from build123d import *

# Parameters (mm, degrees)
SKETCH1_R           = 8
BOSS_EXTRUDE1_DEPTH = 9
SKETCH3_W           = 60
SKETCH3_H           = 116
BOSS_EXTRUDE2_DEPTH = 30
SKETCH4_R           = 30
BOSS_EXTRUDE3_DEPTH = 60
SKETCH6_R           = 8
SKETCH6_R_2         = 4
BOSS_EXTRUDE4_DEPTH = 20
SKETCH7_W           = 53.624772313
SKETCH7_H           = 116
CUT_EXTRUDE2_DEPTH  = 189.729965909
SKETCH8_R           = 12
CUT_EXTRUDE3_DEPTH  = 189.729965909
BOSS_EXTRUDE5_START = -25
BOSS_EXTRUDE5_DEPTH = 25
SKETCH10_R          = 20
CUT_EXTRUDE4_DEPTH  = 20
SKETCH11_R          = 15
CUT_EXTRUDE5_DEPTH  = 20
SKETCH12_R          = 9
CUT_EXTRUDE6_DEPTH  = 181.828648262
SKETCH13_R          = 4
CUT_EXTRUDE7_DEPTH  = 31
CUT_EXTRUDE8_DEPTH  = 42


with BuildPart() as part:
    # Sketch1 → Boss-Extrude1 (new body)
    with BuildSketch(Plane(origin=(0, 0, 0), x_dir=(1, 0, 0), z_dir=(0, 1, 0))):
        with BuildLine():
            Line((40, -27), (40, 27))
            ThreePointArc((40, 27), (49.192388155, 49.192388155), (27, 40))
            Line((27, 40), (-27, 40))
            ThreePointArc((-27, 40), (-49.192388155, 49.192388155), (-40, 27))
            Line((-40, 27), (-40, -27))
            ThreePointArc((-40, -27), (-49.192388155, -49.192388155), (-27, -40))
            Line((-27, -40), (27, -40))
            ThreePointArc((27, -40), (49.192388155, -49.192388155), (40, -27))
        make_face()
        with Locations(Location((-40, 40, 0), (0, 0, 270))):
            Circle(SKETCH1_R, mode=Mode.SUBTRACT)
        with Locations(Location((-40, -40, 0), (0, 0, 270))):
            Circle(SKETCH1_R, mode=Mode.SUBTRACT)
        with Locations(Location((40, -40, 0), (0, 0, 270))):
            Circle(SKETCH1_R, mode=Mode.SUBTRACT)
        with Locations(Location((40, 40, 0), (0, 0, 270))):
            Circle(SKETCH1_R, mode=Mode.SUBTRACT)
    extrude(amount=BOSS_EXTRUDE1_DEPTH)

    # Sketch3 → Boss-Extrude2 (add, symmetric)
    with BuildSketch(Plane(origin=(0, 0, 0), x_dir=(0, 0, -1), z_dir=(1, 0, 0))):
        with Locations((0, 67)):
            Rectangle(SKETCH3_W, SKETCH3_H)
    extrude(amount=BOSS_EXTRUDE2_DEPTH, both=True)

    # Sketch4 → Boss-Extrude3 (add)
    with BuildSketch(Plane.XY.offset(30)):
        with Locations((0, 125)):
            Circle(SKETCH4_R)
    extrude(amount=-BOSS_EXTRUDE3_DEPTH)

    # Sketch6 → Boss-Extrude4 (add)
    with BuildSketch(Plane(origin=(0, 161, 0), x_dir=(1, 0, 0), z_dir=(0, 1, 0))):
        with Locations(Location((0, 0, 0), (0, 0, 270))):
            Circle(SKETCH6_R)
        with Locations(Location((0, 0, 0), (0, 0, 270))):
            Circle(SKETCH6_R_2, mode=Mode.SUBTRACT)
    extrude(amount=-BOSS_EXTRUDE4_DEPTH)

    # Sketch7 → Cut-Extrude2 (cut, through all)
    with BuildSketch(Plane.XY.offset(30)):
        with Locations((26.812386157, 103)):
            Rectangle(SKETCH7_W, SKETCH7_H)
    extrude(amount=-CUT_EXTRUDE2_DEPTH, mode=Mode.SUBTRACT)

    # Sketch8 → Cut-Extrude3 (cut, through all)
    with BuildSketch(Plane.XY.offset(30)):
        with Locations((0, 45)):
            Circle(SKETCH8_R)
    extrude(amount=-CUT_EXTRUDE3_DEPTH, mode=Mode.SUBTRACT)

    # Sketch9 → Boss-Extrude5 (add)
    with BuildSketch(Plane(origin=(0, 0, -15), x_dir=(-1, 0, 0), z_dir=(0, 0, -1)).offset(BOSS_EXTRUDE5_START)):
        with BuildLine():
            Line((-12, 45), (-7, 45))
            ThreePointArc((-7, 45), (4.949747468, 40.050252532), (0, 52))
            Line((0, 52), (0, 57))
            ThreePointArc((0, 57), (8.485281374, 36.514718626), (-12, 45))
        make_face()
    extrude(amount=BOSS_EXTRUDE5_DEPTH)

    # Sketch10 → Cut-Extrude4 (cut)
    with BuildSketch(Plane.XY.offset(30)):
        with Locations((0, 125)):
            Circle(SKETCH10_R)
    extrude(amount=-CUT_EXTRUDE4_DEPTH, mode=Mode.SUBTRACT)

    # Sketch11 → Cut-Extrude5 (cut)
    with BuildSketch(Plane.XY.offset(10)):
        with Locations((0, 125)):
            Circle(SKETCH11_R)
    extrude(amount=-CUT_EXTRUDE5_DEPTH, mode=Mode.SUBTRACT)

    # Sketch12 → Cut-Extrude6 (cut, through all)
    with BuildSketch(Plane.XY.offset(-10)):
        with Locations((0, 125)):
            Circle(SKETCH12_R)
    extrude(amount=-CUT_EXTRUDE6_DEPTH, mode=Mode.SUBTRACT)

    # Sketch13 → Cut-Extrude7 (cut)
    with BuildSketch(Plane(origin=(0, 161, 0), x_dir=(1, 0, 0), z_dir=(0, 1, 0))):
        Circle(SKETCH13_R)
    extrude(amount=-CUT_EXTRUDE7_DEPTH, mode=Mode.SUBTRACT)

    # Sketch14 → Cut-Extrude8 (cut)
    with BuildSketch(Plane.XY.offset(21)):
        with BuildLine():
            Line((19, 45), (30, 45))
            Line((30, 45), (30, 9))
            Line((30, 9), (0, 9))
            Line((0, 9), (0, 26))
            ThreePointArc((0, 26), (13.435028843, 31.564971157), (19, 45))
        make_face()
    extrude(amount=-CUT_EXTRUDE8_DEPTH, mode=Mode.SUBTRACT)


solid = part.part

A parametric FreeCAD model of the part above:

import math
import FreeCAD as App
import Part
import Sketcher


def add_polygon(sketch, points):
    """Adds a closed chain of lines whose ends are joined by coincident constraints."""
    first, n = sketch.GeometryCount, len(points)
    for a, b in zip(points, points[1:] + points[:1]):
        sketch.addGeometry(Part.LineSegment(App.Vector(*a, 0), App.Vector(*b, 0)), False)
    for i in range(n):
        sketch.addConstraint(Sketcher.Constraint("Coincident", first + i, 2, first + (i + 1) % n, 1))

doc = App.newDocument("Part")
body = doc.addObject("PartDesign::Body", "Body")

sketch1 = doc.addObject("Sketcher::SketchObject", "Sketch")
body.addObject(sketch1)
sketch1.AttachmentSupport = (doc.XZ_Plane, [""])
sketch1.MapMode = "FlatFace"
sketch1.addGeometry([
    Part.LineSegment(App.Vector(40, 27, 0), App.Vector(40, -27, 0)),
    Part.ArcOfCircle(Part.Circle(App.Vector(40, -40, 0), App.Vector(0, 0, 1), 13), math.radians(180), math.radians(450)),
    Part.LineSegment(App.Vector(27, -40, 0), App.Vector(-27, -40, 0)),
    Part.ArcOfCircle(Part.Circle(App.Vector(-40, -40, 0), App.Vector(0, 0, 1), 13), math.radians(90), math.radians(360)),
    Part.LineSegment(App.Vector(-40, -27, 0), App.Vector(-40, 27, 0)),
    Part.ArcOfCircle(Part.Circle(App.Vector(-40, 40, 0), App.Vector(0, 0, 1), 13), math.radians(0), math.radians(270)),
    Part.LineSegment(App.Vector(-27, 40, 0), App.Vector(27, 40, 0)),
    Part.ArcOfCircle(Part.Circle(App.Vector(40, 40, 0), App.Vector(0, 0, 1), 13), math.radians(-90), math.radians(180)),
    Part.Circle(App.Vector(-40, 40, 0), App.Vector(0, 0, 1), 8),
    Part.Circle(App.Vector(40, 40, 0), App.Vector(0, 0, 1), 8),
    Part.Circle(App.Vector(-40, -40, 0), App.Vector(0, 0, 1), 8),
    Part.Circle(App.Vector(40, -40, 0), App.Vector(0, 0, 1), 8),
], False)
sketch1.addConstraint([
    Sketcher.Constraint("Coincident", 0, 2, 1, 2),
    Sketcher.Constraint("Coincident", 1, 1, 2, 1),
    Sketcher.Constraint("Coincident", 2, 2, 3, 2),
    Sketcher.Constraint("Coincident", 3, 1, 4, 1),
    Sketcher.Constraint("Coincident", 4, 2, 5, 2),
    Sketcher.Constraint("Coincident", 5, 1, 6, 1),
    Sketcher.Constraint("Coincident", 6, 2, 7, 2),
    Sketcher.Constraint("Coincident", 7, 1, 0, 1),
    Sketcher.Constraint("Vertical", 0),
    Sketcher.Constraint("Horizontal", 2),
    Sketcher.Constraint("Vertical", 4),
    Sketcher.Constraint("Horizontal", 6),
    Sketcher.Constraint("Coincident", 8, 3, 5, 3),
    Sketcher.Constraint("Coincident", 9, 3, 7, 3),
    Sketcher.Constraint("Coincident", 10, 3, 3, 3),
    Sketcher.Constraint("Coincident", 11, 3, 1, 3),
    Sketcher.Constraint("Equal", 1, 3),
    Sketcher.Constraint("Equal", 3, 5),
    Sketcher.Constraint("Equal", 5, 7),
    Sketcher.Constraint("Equal", 8, 9),
    Sketcher.Constraint("Equal", 9, 10),
    Sketcher.Constraint("Equal", 10, 11),
    Sketcher.Constraint("Symmetric", 1, 3, 5, 3, -1, 1),
    Sketcher.Constraint("Symmetric", 3, 3, 7, 3, -1, 1),
    Sketcher.Constraint("Symmetric", 1, 3, 3, 3, -2),
    Sketcher.Constraint("Horizontal", 11, 3, 1, 1),
    Sketcher.Constraint("Horizontal", 9, 3, 5, 1),
    Sketcher.Constraint("Vertical", 11, 3, 0, 2),
    Sketcher.Constraint("Vertical", 10, 3, 3, 1),
    Sketcher.Constraint("Equal", 6, 0),
    Sketcher.Constraint("Diameter", 8, 16.0),
    Sketcher.Constraint("Radius", 1, 13.0),
    Sketcher.Constraint("DistanceX", 2, 2, 2, 1, 54.0),
])
pad1 = doc.addObject("PartDesign::Pad", "Pad")
body.addObject(pad1)
pad1.Profile = sketch1
pad1.Length = 9
pad1.Reversed = True

sketch2 = doc.addObject("Sketcher::SketchObject", "Sketch001")
body.addObject(sketch2)
sketch2.AttachmentSupport = (doc.YZ_Plane, [""])
sketch2.MapMode = "FlatFace"
add_polygon(sketch2, [(125, 30), (9, 30), (9, -30), (125, -30)])
sketch2.addConstraint([
    Sketcher.Constraint("Horizontal", 0),
    Sketcher.Constraint("Vertical", 1),
    Sketcher.Constraint("Horizontal", 2),
    Sketcher.Constraint("Vertical", 3),
    Sketcher.Constraint("DistanceX", 0, 2, 0, 1, 116.0),
    Sketcher.Constraint("DistanceY", 1, 2, 1, 1, 60.0),
    Sketcher.Constraint("DistanceX", -1, 1, 0, 2, 9.0),
    Sketcher.Constraint("DistanceY", -1, 1, 0, 2, 30.0),
])
pad2 = doc.addObject("PartDesign::Pad", "Pad001")
body.addObject(pad2)
pad2.Profile = sketch2
pad2.Length = 60
pad2.Midplane = True

sketch3 = doc.addObject("Sketcher::SketchObject", "Sketch002")
body.addObject(sketch3)
sketch3.AttachmentSupport = (doc.XY_Plane, [""])
sketch3.MapMode = "FlatFace"
sketch3.AttachmentOffset = App.Placement(App.Vector(0, 0, 30), App.Rotation())
sketch3.addGeometry(Part.Circle(App.Vector(0, 125, 0), App.Vector(0, 0, 1), 30), False)
sketch3.addConstraint([
    Sketcher.Constraint("PointOnObject", 0, 3, -2),
    Sketcher.Constraint("Diameter", 0, 60.0),
    Sketcher.Constraint("DistanceY", -1, 1, 0, 3, 125.0),
])
pad3 = doc.addObject("PartDesign::Pad", "Pad002")
body.addObject(pad3)
pad3.Profile = sketch3
pad3.Length = 60
pad3.Reversed = True

sketch4 = doc.addObject("Sketcher::SketchObject", "Sketch003")
body.addObject(sketch4)
sketch4.AttachmentSupport = (doc.XZ_Plane, [""])
sketch4.MapMode = "FlatFace"
sketch4.AttachmentOffset = App.Placement(App.Vector(0, 0, -161), App.Rotation())
sketch4.addGeometry([
    Part.Circle(App.Vector(0, 0, 0), App.Vector(0, 0, 1), 8),
    Part.Circle(App.Vector(0, 0, 0), App.Vector(0, 0, 1), 4),
], False)
sketch4.addConstraint([
    Sketcher.Constraint("Coincident", 0, 3, -1, 1),
    Sketcher.Constraint("Coincident", 1, 3, -1, 1),
    Sketcher.Constraint("Diameter", 0, 16.0),
    Sketcher.Constraint("Diameter", 1, 8.0),
])
pad4 = doc.addObject("PartDesign::Pad", "Pad003")
body.addObject(pad4)
pad4.Profile = sketch4
pad4.Length = 20

sketch5 = doc.addObject("Sketcher::SketchObject", "Sketch004")
body.addObject(sketch5)
sketch5.AttachmentSupport = (doc.XY_Plane, [""])
sketch5.MapMode = "FlatFace"
sketch5.AttachmentOffset = App.Placement(App.Vector(0, 0, 30), App.Rotation())
add_polygon(sketch5, [(0, 161), (0, 45), (53.624772, 45), (53.624772, 161)])
sketch5.addConstraint([
    Sketcher.Constraint("Vertical", 0),
    Sketcher.Constraint("Horizontal", 1),
    Sketcher.Constraint("Vertical", 2),
    Sketcher.Constraint("Horizontal", 3),
    Sketcher.Constraint("PointOnObject", 0, 2, -2),
    Sketcher.Constraint("DistanceY", 0, 2, 0, 1, 116.0),
    Sketcher.Constraint("DistanceY", -1, 1, 0, 2, 45.0),
    Sketcher.Constraint("DistanceX", 1, 1, 1, 2, 53.624772),
])
pocket1 = doc.addObject("PartDesign::Pocket", "Pocket")
body.addObject(pocket1)
pocket1.Profile = sketch5
pocket1.Type = "ThroughAll"

sketch6 = doc.addObject("Sketcher::SketchObject", "Sketch005")
body.addObject(sketch6)
sketch6.AttachmentSupport = (doc.XY_Plane, [""])
sketch6.MapMode = "FlatFace"
sketch6.AttachmentOffset = App.Placement(App.Vector(0, 0, 30), App.Rotation())
sketch6.addGeometry(Part.Circle(App.Vector(0, 45, 0), App.Vector(0, 0, 1), 12), False)
sketch6.addConstraint([
    Sketcher.Constraint("PointOnObject", 0, 3, -2),
    Sketcher.Constraint("Diameter", 0, 24.0),
    Sketcher.Constraint("DistanceY", -1, 1, 0, 3, 45.0),
])
pocket2 = doc.addObject("PartDesign::Pocket", "Pocket001")
body.addObject(pocket2)
pocket2.Profile = sketch6
pocket2.Type = "ThroughAll"

sketch7 = doc.addObject("Sketcher::SketchObject", "Sketch006")
body.addObject(sketch7)
sketch7.AttachmentSupport = (doc.XY_Plane, [""])
sketch7.MapMode = "FlatFace"
sketch7.AttachmentOffset = App.Placement(App.Vector(0, 0, 10), App.Rotation())
sketch7.addGeometry([
    Part.LineSegment(App.Vector(7, 45, 0), App.Vector(12, 45, 0)),
    Part.ArcOfCircle(Part.Circle(App.Vector(0, 45, 0), App.Vector(0, 0, 1), 12), math.radians(90), math.radians(360)),
    Part.LineSegment(App.Vector(0, 57, 0), App.Vector(0, 52, 0)),
    Part.ArcOfCircle(Part.Circle(App.Vector(0, 45, 0), App.Vector(0, 0, 1), 7), math.radians(90), math.radians(360)),
], False)
sketch7.addConstraint([
    Sketcher.Constraint("Coincident", 0, 2, 1, 2),
    Sketcher.Constraint("Coincident", 1, 1, 2, 1),
    Sketcher.Constraint("Coincident", 2, 2, 3, 1),
    Sketcher.Constraint("Coincident", 3, 2, 0, 1),
    Sketcher.Constraint("Horizontal", 0),
    Sketcher.Constraint("Vertical", 2),
    Sketcher.Constraint("Coincident", 3, 3, 1, 3),
    Sketcher.Constraint("PointOnObject", 1, 3, -2),
    Sketcher.Constraint("PointOnObject", 1, 1, -2),
    Sketcher.Constraint("Horizontal", 3, 3, 0, 2),
    Sketcher.Constraint("Radius", 1, 12.0),
    Sketcher.Constraint("Radius", 3, 7.0),
    Sketcher.Constraint("DistanceY", -1, 1, 1, 3, 45.0),
])
pad5 = doc.addObject("PartDesign::Pad", "Pad004")
body.addObject(pad5)
pad5.Profile = sketch7
pad5.Length = 25
pad5.Reversed = True

sketch8 = doc.addObject("Sketcher::SketchObject", "Sketch007")
body.addObject(sketch8)
sketch8.AttachmentSupport = (doc.XY_Plane, [""])
sketch8.MapMode = "FlatFace"
sketch8.AttachmentOffset = App.Placement(App.Vector(0, 0, 30), App.Rotation())
sketch8.addGeometry(Part.Circle(App.Vector(0, 125, 0), App.Vector(0, 0, 1), 20), False)
sketch8.addConstraint([
    Sketcher.Constraint("PointOnObject", 0, 3, -2),
    Sketcher.Constraint("Diameter", 0, 40.0),
    Sketcher.Constraint("DistanceY", -1, 1, 0, 3, 125.0),
])
pocket3 = doc.addObject("PartDesign::Pocket", "Pocket002")
body.addObject(pocket3)
pocket3.Profile = sketch8
pocket3.Length = 20

sketch9 = doc.addObject("Sketcher::SketchObject", "Sketch008")
body.addObject(sketch9)
sketch9.AttachmentSupport = (doc.XY_Plane, [""])
sketch9.MapMode = "FlatFace"
sketch9.AttachmentOffset = App.Placement(App.Vector(0, 0, 10), App.Rotation())
sketch9.addGeometry(Part.Circle(App.Vector(0, 125, 0), App.Vector(0, 0, 1), 15), False)
sketch9.addConstraint([
    Sketcher.Constraint("PointOnObject", 0, 3, -2),
    Sketcher.Constraint("Diameter", 0, 30.0),
    Sketcher.Constraint("DistanceY", -1, 1, 0, 3, 125.0),
])
pocket4 = doc.addObject("PartDesign::Pocket", "Pocket003")
body.addObject(pocket4)
pocket4.Profile = sketch9
pocket4.Length = 20

sketch10 = doc.addObject("Sketcher::SketchObject", "Sketch009")
body.addObject(sketch10)
sketch10.AttachmentSupport = (doc.XY_Plane, [""])
sketch10.MapMode = "FlatFace"
sketch10.AttachmentOffset = App.Placement(App.Vector(0, 0, -10), App.Rotation())
sketch10.addGeometry(Part.Circle(App.Vector(0, 125, 0), App.Vector(0, 0, 1), 9), False)
sketch10.addConstraint([
    Sketcher.Constraint("PointOnObject", 0, 3, -2),
    Sketcher.Constraint("Diameter", 0, 18.0),
    Sketcher.Constraint("DistanceY", -1, 1, 0, 3, 125.0),
])
pocket5 = doc.addObject("PartDesign::Pocket", "Pocket004")
body.addObject(pocket5)
pocket5.Profile = sketch10
pocket5.Type = "ThroughAll"

sketch11 = doc.addObject("Sketcher::SketchObject", "Sketch010")
body.addObject(sketch11)
sketch11.AttachmentSupport = (doc.XZ_Plane, [""])
sketch11.MapMode = "FlatFace"
sketch11.AttachmentOffset = App.Placement(App.Vector(0, 0, -161), App.Rotation())
sketch11.addGeometry(Part.Circle(App.Vector(0, 0, 0), App.Vector(0, 0, 1), 4), False)
sketch11.addConstraint([
    Sketcher.Constraint("Coincident", 0, 3, -1, 1),
    Sketcher.Constraint("Diameter", 0, 8.0),
])
pocket6 = doc.addObject("PartDesign::Pocket", "Pocket005")
body.addObject(pocket6)
pocket6.Profile = sketch11
pocket6.Length = 31
pocket6.Reversed = True

sketch12 = doc.addObject("Sketcher::SketchObject", "Sketch011")
body.addObject(sketch12)
sketch12.AttachmentSupport = (doc.XY_Plane, [""])
sketch12.MapMode = "FlatFace"
sketch12.AttachmentOffset = App.Placement(App.Vector(0, 0, 21), App.Rotation())
sketch12.addGeometry([
    Part.LineSegment(App.Vector(30, 45, 0), App.Vector(19, 45, 0)),
    Part.ArcOfCircle(Part.Circle(App.Vector(0, 45, 0), App.Vector(0, 0, 1), 19), math.radians(-90), math.radians(0)),
    Part.LineSegment(App.Vector(0, 26, 0), App.Vector(0, 9, 0)),
    Part.LineSegment(App.Vector(0, 9, 0), App.Vector(30, 9, 0)),
    Part.LineSegment(App.Vector(30, 9, 0), App.Vector(30, 45, 0)),
], False)
sketch12.addConstraint([
    Sketcher.Constraint("Coincident", 0, 2, 1, 2),
    Sketcher.Constraint("Coincident", 1, 1, 2, 1),
    Sketcher.Constraint("Coincident", 2, 2, 3, 1),
    Sketcher.Constraint("Coincident", 3, 2, 4, 1),
    Sketcher.Constraint("Coincident", 4, 2, 0, 1),
    Sketcher.Constraint("Horizontal", 0),
    Sketcher.Constraint("Vertical", 2),
    Sketcher.Constraint("Horizontal", 3),
    Sketcher.Constraint("Vertical", 4),
    Sketcher.Constraint("PointOnObject", 1, 3, -2),
    Sketcher.Constraint("PointOnObject", 1, 1, -2),
    Sketcher.Constraint("Horizontal", 1, 3, 0, 2),
    Sketcher.Constraint("Radius", 1, 19.0),
    Sketcher.Constraint("DistanceX", 0, 2, 0, 1, 11.0),
    Sketcher.Constraint("DistanceY", 2, 2, 2, 1, 17.0),
    Sketcher.Constraint("DistanceY", -1, 1, 1, 3, 45.0),
])
pocket7 = doc.addObject("PartDesign::Pocket", "Pocket006")
body.addObject(pocket7)
pocket7.Profile = sketch12
pocket7.Length = 42

doc.recompute()
